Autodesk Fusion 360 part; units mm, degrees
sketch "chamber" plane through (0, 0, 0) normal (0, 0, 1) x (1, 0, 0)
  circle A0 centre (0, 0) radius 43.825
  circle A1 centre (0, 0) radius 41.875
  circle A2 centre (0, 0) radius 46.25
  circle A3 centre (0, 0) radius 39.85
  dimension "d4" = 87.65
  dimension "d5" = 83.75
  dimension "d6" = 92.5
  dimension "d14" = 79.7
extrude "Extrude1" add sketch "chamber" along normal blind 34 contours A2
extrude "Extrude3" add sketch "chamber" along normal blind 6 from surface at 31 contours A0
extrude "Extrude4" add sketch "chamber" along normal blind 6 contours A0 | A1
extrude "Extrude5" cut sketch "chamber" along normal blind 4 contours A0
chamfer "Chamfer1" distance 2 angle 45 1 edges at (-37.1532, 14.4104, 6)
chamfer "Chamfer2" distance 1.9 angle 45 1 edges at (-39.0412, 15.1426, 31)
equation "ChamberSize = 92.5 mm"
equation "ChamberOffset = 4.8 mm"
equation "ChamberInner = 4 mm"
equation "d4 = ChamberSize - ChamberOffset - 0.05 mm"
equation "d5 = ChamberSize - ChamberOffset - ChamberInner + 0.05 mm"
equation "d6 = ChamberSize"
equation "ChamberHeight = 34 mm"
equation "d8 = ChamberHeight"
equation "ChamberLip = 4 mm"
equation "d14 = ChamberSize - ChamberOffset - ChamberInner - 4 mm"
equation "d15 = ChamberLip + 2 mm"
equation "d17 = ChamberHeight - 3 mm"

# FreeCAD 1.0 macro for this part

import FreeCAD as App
import Part
import Sketcher
from FreeCAD import Vector


def edges_at(feature, points):
    """Names of the edges that pass closest to the given points."""
    edges = feature.Shape.Edges
    near = lambda p: min(range(len(edges)), key=lambda i: edges[i].distToShape(Part.Vertex(*p))[0])
    return sorted({f"Edge{near(p) + 1}" for p in points})

doc = App.newDocument("Part")
body = doc.addObject("PartDesign::Body", "Body")

# Sketch on XY plane
sketch1 = doc.addObject("Sketcher::SketchObject", "Sketch")
body.addObject(sketch1)
sketch1.AttachmentSupport = (doc.XY_Plane, [""])
sketch1.MapMode = "FlatFace"
sketch1.addGeometry(Part.Circle(Vector(0, 0, 0), Vector(0, 0, 1), 46), False)
sketch1.addGeometry(Part.Circle(Vector(0, 0, 0), Vector(0, 0, 1), 44), False)
sketch1.addConstraint(Sketcher.Constraint("Coincident", 0, 3, -1, 1))
sketch1.addConstraint(Sketcher.Constraint("Coincident", 1, 3, -1, 1))
sketch1.addConstraint(Sketcher.Constraint("Diameter", 0, 92.5))
sketch1.addConstraint(Sketcher.Constraint("Diameter", 1, 87.65))
pad1 = doc.addObject("PartDesign::Pad", "Pad")
body.addObject(pad1)
pad1.Profile = sketch1
pad1.Length = 34

# Sketch on XY plane
sketch2 = doc.addObject("Sketcher::SketchObject", "Sketch001")
body.addObject(sketch2)
sketch2.AttachmentSupport = (doc.XY_Plane, [""])
sketch2.MapMode = "FlatFace"
sketch2.AttachmentOffset = App.Placement(Vector(0, 0, 31), App.Rotation())
sketch2.addGeometry(Part.Circle(Vector(0, 0, 0), Vector(0, 0, 1), 44), False)
sketch2.addGeometry(Part.Circle(Vector(0, 0, 0), Vector(0, 0, 1), 42), False)
sketch2.addConstraint(Sketcher.Constraint("Coincident", 0, 3, -1, 1))
sketch2.addConstraint(Sketcher.Constraint("Coincident", 1, 3, -1, 1))
sketch2.addConstraint(Sketcher.Constraint("Diameter", 0, 87.65))
sketch2.addConstraint(Sketcher.Constraint("Diameter", 1, 83.75))
pad2 = doc.addObject("PartDesign::Pad", "Pad001")
body.addObject(pad2)
pad2.Profile = sketch2
pad2.Length = 6

# Sketch on XY plane
sketch3 = doc.addObject("Sketcher::SketchObject", "Sketch002")
body.addObject(sketch3)
sketch3.AttachmentSupport = (doc.XY_Plane, [""])
sketch3.MapMode = "FlatFace"
sketch3.addGeometry(Part.Circle(Vector(0, 0, 0), Vector(0, 0, 1), 44), False)
sketch3.addGeometry(Part.Circle(Vector(0, 0, 0), Vector(0, 0, 1), 40), False)
sketch3.addConstraint(Sketcher.Constraint("Coincident", 0, 3, -1, 1))
sketch3.addConstraint(Sketcher.Constraint("Coincident", 1, 3, -1, 1))
sketch3.addConstraint(Sketcher.Constraint("Diameter", 1, 79.7))
sketch3.addConstraint(Sketcher.Constraint("Diameter", 0, 87.65))
pad3 = doc.addObject("PartDesign::Pad", "Pad002")
body.addObject(pad3)
pad3.Profile = sketch3
pad3.Length = 6

# Sketch on XY plane
sketch4 = doc.addObject("Sketcher::SketchObject", "Sketch003")
body.addObject(sketch4)
sketch4.AttachmentSupport = (doc.XY_Plane, [""])
sketch4.MapMode = "FlatFace"
sketch4.addGeometry(Part.Circle(Vector(0, 0, 0), Vector(0, 0, 1), 44), False)
sketch4.addGeometry(Part.Circle(Vector(0, 0, 0), Vector(0, 0, 1), 42), False)
sketch4.addConstraint(Sketcher.Constraint("Coincident", 0, 3, -1, 1))
sketch4.addConstraint(Sketcher.Constraint("Coincident", 1, 3, -1, 1))
sketch4.addConstraint(Sketcher.Constraint("Diameter", 0, 87.65))
sketch4.addConstraint(Sketcher.Constraint("Diameter", 1, 83.75))
pocket1 = doc.addObject("PartDesign::Pocket", "Pocket")
body.addObject(pocket1)
pocket1.Profile = sketch4
pocket1.Length = 4
pocket1.Reversed = True
doc.recompute()

chamfer = doc.addObject("PartDesign::Chamfer", "Chamfer")
body.addObject(chamfer)
chamfer.Base = (pocket1, edges_at(pocket1, [(-37.153, 14.41, 6)]))
chamfer.Size = 2
doc.recompute()

chamfer2 = doc.addObject("PartDesign::Chamfer", "Chamfer001")
body.addObject(chamfer2)
chamfer2.Base = (chamfer, edges_at(chamfer, [(-39.041, 15.143, 31)]))
chamfer2.Size = 1.9

doc.recompute()
